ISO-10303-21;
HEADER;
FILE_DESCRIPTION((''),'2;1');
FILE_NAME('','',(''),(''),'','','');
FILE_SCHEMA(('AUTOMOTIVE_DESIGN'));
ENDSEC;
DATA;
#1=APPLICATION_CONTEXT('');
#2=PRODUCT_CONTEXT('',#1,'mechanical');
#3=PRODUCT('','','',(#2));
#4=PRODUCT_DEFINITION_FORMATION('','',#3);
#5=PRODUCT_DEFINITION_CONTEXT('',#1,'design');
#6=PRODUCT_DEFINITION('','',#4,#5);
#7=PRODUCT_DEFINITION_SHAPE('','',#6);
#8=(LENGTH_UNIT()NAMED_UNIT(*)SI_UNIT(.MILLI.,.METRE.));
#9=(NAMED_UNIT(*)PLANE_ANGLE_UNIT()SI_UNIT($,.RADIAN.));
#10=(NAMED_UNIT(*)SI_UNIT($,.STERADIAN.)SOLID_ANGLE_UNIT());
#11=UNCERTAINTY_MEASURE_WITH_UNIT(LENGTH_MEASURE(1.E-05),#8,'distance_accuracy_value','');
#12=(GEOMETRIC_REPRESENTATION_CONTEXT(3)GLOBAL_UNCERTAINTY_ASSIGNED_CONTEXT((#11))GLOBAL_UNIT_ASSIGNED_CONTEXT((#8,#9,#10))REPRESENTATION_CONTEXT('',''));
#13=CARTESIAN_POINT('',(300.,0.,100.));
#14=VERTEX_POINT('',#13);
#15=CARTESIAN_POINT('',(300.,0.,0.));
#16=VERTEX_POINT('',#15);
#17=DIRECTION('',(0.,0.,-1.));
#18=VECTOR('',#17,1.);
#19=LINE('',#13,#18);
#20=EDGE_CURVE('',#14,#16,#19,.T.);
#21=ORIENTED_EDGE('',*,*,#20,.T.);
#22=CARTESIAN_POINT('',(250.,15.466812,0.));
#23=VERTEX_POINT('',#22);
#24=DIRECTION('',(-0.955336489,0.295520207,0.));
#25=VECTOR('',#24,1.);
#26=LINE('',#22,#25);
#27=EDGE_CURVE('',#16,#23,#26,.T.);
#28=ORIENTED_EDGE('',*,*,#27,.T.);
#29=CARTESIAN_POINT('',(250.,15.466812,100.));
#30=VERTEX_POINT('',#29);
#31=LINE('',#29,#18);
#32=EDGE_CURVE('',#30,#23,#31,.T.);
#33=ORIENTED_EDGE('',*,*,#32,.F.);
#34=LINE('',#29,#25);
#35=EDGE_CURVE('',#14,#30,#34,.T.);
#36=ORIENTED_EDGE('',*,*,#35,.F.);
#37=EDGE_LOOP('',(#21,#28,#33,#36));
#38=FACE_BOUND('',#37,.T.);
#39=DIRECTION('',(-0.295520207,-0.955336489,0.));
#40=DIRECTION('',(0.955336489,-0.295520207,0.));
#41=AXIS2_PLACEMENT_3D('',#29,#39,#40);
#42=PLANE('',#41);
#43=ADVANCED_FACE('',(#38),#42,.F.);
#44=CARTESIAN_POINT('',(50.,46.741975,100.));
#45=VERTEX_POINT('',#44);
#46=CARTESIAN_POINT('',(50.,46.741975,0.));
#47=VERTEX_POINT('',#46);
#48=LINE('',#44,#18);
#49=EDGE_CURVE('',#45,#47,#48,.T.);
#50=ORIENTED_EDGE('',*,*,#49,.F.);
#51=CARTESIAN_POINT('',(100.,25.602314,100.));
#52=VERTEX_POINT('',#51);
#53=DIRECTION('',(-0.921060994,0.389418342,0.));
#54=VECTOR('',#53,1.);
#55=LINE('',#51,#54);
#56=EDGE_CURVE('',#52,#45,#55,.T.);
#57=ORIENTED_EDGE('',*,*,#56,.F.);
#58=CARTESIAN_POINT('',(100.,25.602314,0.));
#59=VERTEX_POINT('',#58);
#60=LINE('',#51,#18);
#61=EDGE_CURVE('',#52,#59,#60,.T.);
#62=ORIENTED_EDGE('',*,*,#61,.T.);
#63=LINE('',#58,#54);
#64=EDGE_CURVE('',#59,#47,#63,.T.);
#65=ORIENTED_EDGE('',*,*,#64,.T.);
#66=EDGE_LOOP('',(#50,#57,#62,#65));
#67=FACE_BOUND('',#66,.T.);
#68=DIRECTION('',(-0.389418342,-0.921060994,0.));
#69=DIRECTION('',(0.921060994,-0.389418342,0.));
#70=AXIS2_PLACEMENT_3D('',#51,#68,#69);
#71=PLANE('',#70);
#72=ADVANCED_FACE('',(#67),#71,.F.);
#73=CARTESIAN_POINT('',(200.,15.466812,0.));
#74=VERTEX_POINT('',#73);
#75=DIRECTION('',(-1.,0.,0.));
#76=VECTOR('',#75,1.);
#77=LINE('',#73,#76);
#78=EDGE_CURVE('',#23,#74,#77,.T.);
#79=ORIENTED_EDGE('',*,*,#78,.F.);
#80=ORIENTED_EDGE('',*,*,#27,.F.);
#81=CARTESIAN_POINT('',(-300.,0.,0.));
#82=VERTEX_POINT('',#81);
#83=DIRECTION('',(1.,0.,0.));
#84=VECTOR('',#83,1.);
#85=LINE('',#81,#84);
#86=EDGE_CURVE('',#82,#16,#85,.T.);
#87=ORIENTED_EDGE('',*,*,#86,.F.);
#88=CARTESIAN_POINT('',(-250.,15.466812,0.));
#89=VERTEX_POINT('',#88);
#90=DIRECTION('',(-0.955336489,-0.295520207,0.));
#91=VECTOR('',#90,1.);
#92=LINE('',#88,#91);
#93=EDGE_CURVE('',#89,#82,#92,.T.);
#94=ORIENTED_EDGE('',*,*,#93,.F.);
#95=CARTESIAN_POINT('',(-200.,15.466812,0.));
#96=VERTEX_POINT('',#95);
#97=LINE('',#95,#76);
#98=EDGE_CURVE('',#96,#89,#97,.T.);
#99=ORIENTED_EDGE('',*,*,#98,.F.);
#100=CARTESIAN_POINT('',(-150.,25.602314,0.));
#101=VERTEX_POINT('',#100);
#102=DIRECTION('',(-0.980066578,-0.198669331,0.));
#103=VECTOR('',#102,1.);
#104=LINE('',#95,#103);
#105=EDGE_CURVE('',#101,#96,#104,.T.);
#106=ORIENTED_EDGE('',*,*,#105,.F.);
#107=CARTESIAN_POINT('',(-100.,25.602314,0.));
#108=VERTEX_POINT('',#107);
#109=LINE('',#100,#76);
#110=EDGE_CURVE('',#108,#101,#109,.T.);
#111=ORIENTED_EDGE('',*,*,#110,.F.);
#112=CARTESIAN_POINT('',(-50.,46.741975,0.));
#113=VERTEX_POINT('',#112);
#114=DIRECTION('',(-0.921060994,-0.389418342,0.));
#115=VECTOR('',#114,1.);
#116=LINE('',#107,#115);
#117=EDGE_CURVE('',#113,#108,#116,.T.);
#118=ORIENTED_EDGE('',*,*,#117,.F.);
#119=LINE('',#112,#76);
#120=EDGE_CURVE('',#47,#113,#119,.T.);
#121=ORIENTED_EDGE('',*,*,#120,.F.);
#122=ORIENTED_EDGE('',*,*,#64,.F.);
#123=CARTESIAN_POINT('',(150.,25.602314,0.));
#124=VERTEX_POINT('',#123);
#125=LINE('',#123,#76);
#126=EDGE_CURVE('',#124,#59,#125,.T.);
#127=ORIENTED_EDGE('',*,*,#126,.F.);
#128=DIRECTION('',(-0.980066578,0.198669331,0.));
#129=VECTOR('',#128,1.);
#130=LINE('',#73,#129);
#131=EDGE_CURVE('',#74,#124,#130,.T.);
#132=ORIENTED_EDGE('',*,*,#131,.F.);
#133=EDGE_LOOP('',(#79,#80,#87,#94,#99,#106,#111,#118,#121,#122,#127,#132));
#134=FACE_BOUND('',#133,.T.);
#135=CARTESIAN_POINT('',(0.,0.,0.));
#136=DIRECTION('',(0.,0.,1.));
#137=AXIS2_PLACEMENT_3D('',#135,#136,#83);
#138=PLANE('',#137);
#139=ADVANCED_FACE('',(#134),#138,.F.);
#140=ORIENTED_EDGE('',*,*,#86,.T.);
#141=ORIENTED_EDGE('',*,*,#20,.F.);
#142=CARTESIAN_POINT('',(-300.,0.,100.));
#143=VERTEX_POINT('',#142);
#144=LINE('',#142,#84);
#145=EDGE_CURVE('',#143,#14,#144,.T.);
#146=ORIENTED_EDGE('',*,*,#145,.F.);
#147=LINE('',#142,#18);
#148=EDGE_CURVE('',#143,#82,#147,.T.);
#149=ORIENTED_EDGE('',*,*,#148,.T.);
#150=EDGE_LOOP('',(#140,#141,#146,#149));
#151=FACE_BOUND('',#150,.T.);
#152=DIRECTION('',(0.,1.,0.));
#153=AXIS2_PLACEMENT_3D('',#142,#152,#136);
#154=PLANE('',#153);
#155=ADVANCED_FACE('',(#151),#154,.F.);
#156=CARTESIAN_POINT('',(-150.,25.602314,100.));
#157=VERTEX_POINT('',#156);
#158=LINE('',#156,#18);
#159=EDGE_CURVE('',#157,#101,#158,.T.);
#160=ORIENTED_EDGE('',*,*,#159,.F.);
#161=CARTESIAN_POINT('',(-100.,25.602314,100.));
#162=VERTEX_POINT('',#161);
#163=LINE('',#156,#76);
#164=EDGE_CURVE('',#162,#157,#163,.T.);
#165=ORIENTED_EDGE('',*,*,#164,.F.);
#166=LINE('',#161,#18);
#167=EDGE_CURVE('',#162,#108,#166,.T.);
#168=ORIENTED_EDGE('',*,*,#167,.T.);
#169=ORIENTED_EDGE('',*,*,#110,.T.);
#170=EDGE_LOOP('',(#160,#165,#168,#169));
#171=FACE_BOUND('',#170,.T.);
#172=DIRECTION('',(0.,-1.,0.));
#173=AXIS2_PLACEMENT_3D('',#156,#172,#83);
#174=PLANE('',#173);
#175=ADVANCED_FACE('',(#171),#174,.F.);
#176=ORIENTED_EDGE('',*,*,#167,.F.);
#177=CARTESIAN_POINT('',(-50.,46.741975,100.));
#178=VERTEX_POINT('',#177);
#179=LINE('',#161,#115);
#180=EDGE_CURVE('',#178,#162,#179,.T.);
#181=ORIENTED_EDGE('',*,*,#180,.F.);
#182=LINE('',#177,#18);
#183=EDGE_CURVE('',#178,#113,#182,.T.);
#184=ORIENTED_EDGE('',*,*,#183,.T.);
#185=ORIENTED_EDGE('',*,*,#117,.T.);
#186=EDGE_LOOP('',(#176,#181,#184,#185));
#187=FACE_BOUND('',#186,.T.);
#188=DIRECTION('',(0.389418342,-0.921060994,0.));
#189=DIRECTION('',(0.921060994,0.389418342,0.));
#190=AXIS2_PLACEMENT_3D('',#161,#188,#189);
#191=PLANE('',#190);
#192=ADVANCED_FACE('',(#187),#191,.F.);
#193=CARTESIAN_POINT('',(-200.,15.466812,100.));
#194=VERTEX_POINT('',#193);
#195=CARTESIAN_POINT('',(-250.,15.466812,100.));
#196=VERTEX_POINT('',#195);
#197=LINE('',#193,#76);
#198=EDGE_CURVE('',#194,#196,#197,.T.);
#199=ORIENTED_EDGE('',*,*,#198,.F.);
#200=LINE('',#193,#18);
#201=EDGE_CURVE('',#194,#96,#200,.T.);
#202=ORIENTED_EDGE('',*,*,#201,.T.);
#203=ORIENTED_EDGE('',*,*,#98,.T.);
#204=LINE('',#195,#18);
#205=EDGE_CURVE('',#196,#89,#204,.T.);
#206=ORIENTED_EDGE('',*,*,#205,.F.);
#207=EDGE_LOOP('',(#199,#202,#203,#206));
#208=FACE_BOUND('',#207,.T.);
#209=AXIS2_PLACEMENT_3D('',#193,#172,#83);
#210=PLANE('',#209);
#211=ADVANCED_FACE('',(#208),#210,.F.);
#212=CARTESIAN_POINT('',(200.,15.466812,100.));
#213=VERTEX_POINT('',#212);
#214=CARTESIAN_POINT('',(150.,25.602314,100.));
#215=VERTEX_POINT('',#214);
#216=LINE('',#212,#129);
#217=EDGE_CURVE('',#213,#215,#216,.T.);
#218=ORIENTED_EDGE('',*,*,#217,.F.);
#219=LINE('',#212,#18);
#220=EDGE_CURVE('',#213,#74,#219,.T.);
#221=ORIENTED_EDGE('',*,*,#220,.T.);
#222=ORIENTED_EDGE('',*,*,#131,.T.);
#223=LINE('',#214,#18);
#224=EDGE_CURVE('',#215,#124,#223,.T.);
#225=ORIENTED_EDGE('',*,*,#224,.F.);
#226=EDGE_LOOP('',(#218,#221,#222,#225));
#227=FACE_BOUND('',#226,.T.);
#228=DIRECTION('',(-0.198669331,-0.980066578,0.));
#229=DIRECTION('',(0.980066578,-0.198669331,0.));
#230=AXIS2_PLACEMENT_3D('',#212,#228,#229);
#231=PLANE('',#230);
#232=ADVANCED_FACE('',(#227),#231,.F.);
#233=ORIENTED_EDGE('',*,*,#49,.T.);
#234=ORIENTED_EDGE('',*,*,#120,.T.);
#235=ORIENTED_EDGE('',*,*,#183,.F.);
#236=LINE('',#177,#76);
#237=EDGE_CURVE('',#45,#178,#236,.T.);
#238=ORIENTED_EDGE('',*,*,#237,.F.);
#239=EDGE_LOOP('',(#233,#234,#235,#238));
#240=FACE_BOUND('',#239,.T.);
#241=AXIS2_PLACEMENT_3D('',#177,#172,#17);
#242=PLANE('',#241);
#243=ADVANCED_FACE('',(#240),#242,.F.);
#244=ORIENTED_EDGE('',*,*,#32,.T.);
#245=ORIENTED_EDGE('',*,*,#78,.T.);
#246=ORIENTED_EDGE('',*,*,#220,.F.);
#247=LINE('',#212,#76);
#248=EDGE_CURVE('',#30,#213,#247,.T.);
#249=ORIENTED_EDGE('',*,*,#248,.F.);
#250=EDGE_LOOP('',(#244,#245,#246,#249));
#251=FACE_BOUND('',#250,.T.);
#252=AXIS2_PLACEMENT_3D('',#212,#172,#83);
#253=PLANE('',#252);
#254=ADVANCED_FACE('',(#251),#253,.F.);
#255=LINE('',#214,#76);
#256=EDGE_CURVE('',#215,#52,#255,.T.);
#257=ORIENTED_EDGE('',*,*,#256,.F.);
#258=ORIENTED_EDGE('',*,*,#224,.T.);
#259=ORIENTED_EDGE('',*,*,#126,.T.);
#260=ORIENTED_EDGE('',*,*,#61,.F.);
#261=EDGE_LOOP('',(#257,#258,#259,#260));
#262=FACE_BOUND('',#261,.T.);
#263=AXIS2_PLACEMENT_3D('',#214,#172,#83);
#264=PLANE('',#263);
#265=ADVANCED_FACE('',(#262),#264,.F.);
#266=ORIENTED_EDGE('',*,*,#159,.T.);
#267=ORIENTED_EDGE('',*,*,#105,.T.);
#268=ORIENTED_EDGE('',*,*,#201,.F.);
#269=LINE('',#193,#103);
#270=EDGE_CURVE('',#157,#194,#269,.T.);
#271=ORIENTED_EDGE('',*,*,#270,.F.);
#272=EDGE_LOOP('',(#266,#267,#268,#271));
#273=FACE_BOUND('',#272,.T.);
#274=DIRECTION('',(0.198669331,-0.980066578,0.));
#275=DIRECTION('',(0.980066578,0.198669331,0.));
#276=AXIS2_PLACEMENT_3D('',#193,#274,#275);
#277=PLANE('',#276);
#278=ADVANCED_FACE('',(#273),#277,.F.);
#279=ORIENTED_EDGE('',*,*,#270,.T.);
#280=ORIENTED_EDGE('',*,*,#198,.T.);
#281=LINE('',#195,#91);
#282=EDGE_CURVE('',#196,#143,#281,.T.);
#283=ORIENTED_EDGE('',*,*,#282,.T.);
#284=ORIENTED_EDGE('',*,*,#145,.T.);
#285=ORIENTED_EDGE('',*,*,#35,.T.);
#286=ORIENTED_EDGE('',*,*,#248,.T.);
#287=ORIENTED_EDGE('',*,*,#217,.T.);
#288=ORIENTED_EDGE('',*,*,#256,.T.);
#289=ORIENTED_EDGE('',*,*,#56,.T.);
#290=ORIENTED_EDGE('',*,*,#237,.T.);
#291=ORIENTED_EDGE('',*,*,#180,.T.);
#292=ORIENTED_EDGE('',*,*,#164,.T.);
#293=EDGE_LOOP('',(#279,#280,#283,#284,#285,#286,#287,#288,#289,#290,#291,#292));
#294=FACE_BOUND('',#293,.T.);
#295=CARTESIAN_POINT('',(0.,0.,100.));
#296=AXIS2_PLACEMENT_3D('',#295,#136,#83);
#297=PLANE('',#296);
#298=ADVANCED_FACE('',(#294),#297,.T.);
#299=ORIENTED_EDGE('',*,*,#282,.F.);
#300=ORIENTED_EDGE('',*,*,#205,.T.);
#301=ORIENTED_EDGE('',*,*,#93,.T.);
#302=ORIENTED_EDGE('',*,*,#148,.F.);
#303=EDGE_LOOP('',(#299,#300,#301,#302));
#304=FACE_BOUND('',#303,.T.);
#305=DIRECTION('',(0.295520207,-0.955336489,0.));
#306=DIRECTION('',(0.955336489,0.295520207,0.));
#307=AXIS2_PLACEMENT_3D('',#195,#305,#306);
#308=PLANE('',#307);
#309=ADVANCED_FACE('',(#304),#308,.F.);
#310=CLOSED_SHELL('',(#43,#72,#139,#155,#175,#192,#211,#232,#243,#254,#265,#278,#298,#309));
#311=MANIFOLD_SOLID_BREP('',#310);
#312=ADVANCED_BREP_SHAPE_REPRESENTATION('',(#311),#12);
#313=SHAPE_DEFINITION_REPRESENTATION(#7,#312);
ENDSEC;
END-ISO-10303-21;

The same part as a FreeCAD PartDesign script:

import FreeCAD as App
import Part
import Sketcher

V = App.Vector


def add_polygon(sketch, points):
    """Adds a closed chain of lines whose ends are joined by coincident constraints."""
    first, n = sketch.GeometryCount, len(points)
    for a, b in zip(points, points[1:] + points[:1]):
        sketch.addGeometry(Part.LineSegment(App.Vector(*a, 0), App.Vector(*b, 0)), False)
    for i in range(n):
        sketch.addConstraint(Sketcher.Constraint("Coincident", first + i, 2, first + (i + 1) % n, 1))

doc = App.newDocument("Part")
params = doc.addObject("Spreadsheet::Sheet", "Params")
for row, (alias, value) in enumerate([
    ("sketch1_width", "50 mm"),
    ("sketch1_width2", "600 mm"),
    ("sketch1_width3", "100 mm"),
    ("pad1_length", "100 mm"),
], start=1):
    params.set(f"A{row}", alias)
    params.set(f"B{row}", "=" + value)
    params.setAlias(f"B{row}", alias)

body = doc.addObject("PartDesign::Body", "Body")

# Sketch on XY plane
sketch1 = doc.addObject("Sketcher::SketchObject", "Sketch")
body.addObject(sketch1)
sketch1.AttachmentSupport = (doc.XY_Plane, [""])
sketch1.MapMode = "FlatFace"
add_polygon(sketch1, [(-150, 25.602314), (-200, 15.466812), (-250, 15.466812), (-300, 0), (300, 0), (250, 15.466812), (200, 15.466812), (150, 25.602314), (100, 25.602314), (50, 46.741975), (-50, 46.741975), (-100, 25.602314)])  # lines 0-11
sketch1.addConstraint([
    Sketcher.Constraint("Horizontal", 1),
    Sketcher.Constraint("Horizontal", 3),
    Sketcher.Constraint("Horizontal", 5),
    Sketcher.Constraint("Horizontal", 7),
    Sketcher.Constraint("Horizontal", 9),
    Sketcher.Constraint("Horizontal", 11),
    Sketcher.Constraint("Symmetric", 2, 2, 3, 2, -1, 1),
    Sketcher.Constraint("Symmetric", 1, 2, 4, 2, -2),
    Sketcher.Constraint("Symmetric", 7, 2, 10, 2, -2),
    Sketcher.Constraint("Equal", 1, 5),
    Sketcher.Constraint("Equal", 5, 7),
    Sketcher.Constraint("Equal", 7, 11),
    Sketcher.Constraint("Equal", 8, 10),
    Sketcher.Constraint("DistanceX", 1, 2, 1, 1, 50.0),
    Sketcher.Constraint("DistanceX", 3, 1, 3, 2, 600.0),
    Sketcher.Constraint("DistanceX", 9, 2, 9, 1, 100.0),
    Sketcher.Constraint("DistanceX", 0, 2, -1, 1, 200.0),
    Sketcher.Constraint("DistanceX", -1, 1, 6, 2, 150.0),
    Sketcher.Constraint("DistanceY", 5, 2, 6, 2, 10.135502),
    Sketcher.Constraint("Distance", 2, 52.33758),
    Sketcher.Constraint("Distance", 8, 54.285221),
])
sketch1.setExpression("Constraints[25]", "Params.sketch1_width")
sketch1.setExpression("Constraints[26]", "Params.sketch1_width2")
sketch1.setExpression("Constraints[27]", "Params.sketch1_width3")
pad1 = doc.addObject("PartDesign::Pad", "Pad")
body.addObject(pad1)
pad1.Profile = sketch1
pad1.setExpression("Length", "Params.pad1_length")

doc.recompute()
